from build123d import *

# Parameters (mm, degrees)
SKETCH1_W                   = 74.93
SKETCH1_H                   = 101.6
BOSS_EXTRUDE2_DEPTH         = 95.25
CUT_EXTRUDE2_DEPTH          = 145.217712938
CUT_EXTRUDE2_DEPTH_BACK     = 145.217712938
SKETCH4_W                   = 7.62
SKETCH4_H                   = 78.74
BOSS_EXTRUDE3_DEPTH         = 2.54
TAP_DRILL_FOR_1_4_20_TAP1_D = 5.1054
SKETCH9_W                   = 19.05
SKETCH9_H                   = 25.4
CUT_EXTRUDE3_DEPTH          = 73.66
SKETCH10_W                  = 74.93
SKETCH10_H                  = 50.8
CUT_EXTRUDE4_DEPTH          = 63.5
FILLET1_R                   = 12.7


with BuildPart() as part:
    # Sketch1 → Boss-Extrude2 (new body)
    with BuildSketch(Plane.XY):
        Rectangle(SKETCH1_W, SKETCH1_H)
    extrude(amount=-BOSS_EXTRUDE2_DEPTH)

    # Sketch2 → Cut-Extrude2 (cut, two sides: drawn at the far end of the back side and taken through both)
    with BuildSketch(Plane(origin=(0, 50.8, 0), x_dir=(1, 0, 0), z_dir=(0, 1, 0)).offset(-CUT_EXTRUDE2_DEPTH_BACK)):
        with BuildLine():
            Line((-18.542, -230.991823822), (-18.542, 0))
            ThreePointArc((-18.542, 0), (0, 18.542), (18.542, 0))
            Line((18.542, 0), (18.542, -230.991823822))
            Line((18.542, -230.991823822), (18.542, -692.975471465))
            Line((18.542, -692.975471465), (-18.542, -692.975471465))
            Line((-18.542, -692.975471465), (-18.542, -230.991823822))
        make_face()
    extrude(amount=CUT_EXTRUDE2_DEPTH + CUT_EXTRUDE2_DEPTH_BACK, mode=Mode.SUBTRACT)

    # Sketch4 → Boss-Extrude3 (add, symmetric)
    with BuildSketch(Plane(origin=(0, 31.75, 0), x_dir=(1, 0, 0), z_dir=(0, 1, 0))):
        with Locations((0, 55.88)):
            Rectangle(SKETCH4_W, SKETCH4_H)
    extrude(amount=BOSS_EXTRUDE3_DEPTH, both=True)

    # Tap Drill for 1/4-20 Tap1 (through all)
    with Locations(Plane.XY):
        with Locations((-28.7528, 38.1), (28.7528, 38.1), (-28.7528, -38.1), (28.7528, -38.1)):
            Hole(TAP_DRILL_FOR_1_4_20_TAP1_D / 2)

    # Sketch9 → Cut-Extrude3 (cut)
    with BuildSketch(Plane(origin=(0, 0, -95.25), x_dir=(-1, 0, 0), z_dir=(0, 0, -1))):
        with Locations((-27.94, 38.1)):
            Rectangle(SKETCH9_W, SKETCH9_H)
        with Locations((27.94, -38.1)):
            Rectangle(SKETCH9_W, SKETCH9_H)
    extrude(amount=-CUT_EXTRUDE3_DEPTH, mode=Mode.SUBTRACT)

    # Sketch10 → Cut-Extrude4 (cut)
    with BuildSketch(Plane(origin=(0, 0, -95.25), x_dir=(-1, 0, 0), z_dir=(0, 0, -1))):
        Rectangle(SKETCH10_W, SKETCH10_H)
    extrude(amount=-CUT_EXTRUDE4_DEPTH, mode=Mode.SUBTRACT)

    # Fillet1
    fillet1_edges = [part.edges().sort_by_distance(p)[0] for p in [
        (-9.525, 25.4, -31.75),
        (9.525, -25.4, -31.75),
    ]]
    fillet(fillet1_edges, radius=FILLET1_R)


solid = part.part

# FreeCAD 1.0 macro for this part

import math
import FreeCAD as App
import Part
import Sketcher
from FreeCAD import Vector
Q = App.Units.Quantity


def edges_at(feature, points):
    """Names of the edges that pass closest to the given points."""
    edges = feature.Shape.Edges
    near = lambda p: min(range(len(edges)), key=lambda i: edges[i].distToShape(Part.Vertex(*p))[0])
    return sorted({f"Edge{near(p) + 1}" for p in points})


def add_polygon(sketch, points):
    """Adds a closed chain of lines whose ends are joined by coincident constraints."""
    first, n = sketch.GeometryCount, len(points)
    for a, b in zip(points, points[1:] + points[:1]):
        sketch.addGeometry(Part.LineSegment(App.Vector(*a, 0), App.Vector(*b, 0)), False)
    for i in range(n):
        sketch.addConstraint(Sketcher.Constraint("Coincident", first + i, 2, first + (i + 1) % n, 1))

doc = App.newDocument("Part")
body = doc.addObject("PartDesign::Body", "Body")

sketch1 = body.newObject("Sketcher::SketchObject", "Sketch")
sketch1.AttachmentSupport = (doc.getObject("XY_Plane"), [""])
sketch1.MapMode = "FlatFace"
add_polygon(sketch1, [(-37.465, 50.8), (-37.465, -50.8), (37.465, -50.8), (37.465, 50.8)])
sketch1.addConstraint([
    Sketcher.Constraint("Vertical", 0),
    Sketcher.Constraint("Horizontal", 1),
    Sketcher.Constraint("Vertical", 2),
    Sketcher.Constraint("Horizontal", 3),
    Sketcher.Constraint("Symmetric", 0, 2, 2, 2, -1, 1),
    Sketcher.Constraint("DistanceY", 0, 2, 0, 1, Q("4 in")),
    Sketcher.Constraint("DistanceX", 1, 1, 1, 2, Q("2.95 in")),
])
pad1 = body.newObject("PartDesign::Pad", "Pad")
pad1.Profile = sketch1
pad1.Length = Q("3.75 in")
pad1.Reversed = True

sketch2 = body.newObject("Sketcher::SketchObject", "Sketch001")
sketch2.AttachmentSupport = (doc.getObject("XZ_Plane"), [""])
sketch2.MapMode = "FlatFace"
sketch2.AttachmentOffset = App.Placement(Vector(0, 0, -2 * 25.4), App.Rotation())
sketch2.addGeometry([
    Part.ArcOfCircle(Part.Circle(Vector(0, 0, 0), Vector(0, 0, 1), 18.542), math.radians(180), math.radians(360)),
    Part.LineSegment(Vector(-18.542, 0, 0), Vector(-18.542, 692.975471, 0)),
    Part.LineSegment(Vector(-18.542, 692.975471, 0), Vector(18.542, 692.975471, 0)),
    Part.LineSegment(Vector(18.542, 692.975471, 0), Vector(18.542, 0, 0)),
], False)
sketch2.addConstraint([
    Sketcher.Constraint("Tangent", 0, 1, 1, 1),
    Sketcher.Constraint("Coincident", 1, 2, 2, 1),
    Sketcher.Constraint("Coincident", 2, 2, 3, 1),
    Sketcher.Constraint("Tangent", 3, 2, 0, 2),
    Sketcher.Constraint("Vertical", 1),
    Sketcher.Constraint("Horizontal", 2),
    Sketcher.Constraint("Vertical", 3),
    Sketcher.Constraint("Coincident", 0, 3, -1, 1),
    Sketcher.Constraint("Radius", 0, Q("0.73 in")),
    Sketcher.Constraint("DistanceY", 1, 1, 1, 2, 692.975471),
])
pocket1 = body.newObject("PartDesign::Pocket", "Pocket")
pocket1.Profile = sketch2
pocket1.Type = "ThroughAll"
pocket1.Midplane = True

sketch3 = body.newObject("Sketcher::SketchObject", "Sketch002")
sketch3.AttachmentSupport = (doc.getObject("XZ_Plane"), [""])
sketch3.MapMode = "FlatFace"
sketch3.AttachmentOffset = App.Placement(Vector(0, 0, -1.25 * 25.4), App.Rotation())
add_polygon(sketch3, [(-3.81, -95.25), (-3.81, -16.51), (3.81, -16.51), (3.81, -95.25)])
sketch3.addConstraint([
    Sketcher.Constraint("Vertical", 0),
    Sketcher.Constraint("Horizontal", 1),
    Sketcher.Constraint("Vertical", 2),
    Sketcher.Constraint("Horizontal", 3),
    Sketcher.Constraint("DistanceX", 1, 1, 1, 2, Q("0.3 in")),
    Sketcher.Constraint("DistanceY", 0, 1, 0, 2, Q("3.1 in")),
    Sketcher.Constraint("DistanceX", 0, 2, -1, 1, Q("0.15 in")),
    Sketcher.Constraint("DistanceY", 0, 2, -1, 1, Q("0.65 in")),
])
pad2 = body.newObject("PartDesign::Pad", "Pad001")
pad2.Profile = sketch3
pad2.Length = Q("0.2 in")
pad2.Midplane = True

sketch4 = body.newObject("Sketcher::SketchObject", "Sketch003")
sketch4.AttachmentSupport = (doc.getObject("XY_Plane"), [""])
sketch4.MapMode = "FlatFace"
sketch4.addGeometry([
    Part.Circle(Vector(-28.7528, 38.1, 0), Vector(0, 0, 1), 2.5527),
    Part.Circle(Vector(28.7528, 38.1, 0), Vector(0, 0, 1), 2.5527),
    Part.Circle(Vector(-28.7528, -38.1, 0), Vector(0, 0, 1), 2.5527),
    Part.Circle(Vector(28.7528, -38.1, 0), Vector(0, 0, 1), 2.5527),
], False)
sketch4.addConstraint([
    Sketcher.Constraint("Equal", 0, 1),
    Sketcher.Constraint("Equal", 1, 2),
    Sketcher.Constraint("Equal", 2, 3),
    Sketcher.Constraint("Symmetric", 1, 3, 2, 3, -1, 1),
    Sketcher.Constraint("Symmetric", 0, 3, 3, 3, -1, 1),
    Sketcher.Constraint("Symmetric", 0, 3, 1, 3, -2),
    Sketcher.Constraint("Diameter", 0, Q("0.201 in")),
    Sketcher.Constraint("DistanceY", 2, 3, 0, 3, Q("3 in")),
    Sketcher.Constraint("DistanceX", 0, 3, -1, 1, Q("1.132 in")),
])
doc.recompute()
hole = body.newObject("PartDesign::Hole", "Hole")
hole.Profile = sketch4
hole.ThreadType = "None"
hole.Diameter = Q("0.201 in")
hole.DepthType = "ThroughAll"

sketch5 = body.newObject("Sketcher::SketchObject", "Sketch004")
sketch5.AttachmentSupport = (doc.getObject("XY_Plane"), [""])
sketch5.MapMode = "FlatFace"
sketch5.AttachmentOffset = App.Placement(Vector(0, 0, -3.75 * 25.4), App.Rotation())
add_polygon(sketch5, [(37.465, 50.8), (37.465, 25.4), (18.415, 25.4), (18.415, 50.8)])
add_polygon(sketch5, [(-18.415, -25.4), (-18.415, -50.8), (-37.465, -50.8), (-37.465, -25.4)])
sketch5.addConstraint([
    Sketcher.Constraint("Vertical", 0),
    Sketcher.Constraint("Horizontal", 1),
    Sketcher.Constraint("Vertical", 2),
    Sketcher.Constraint("Horizontal", 3),
    Sketcher.Constraint("Vertical", 4),
    Sketcher.Constraint("Horizontal", 5),
    Sketcher.Constraint("Vertical", 6),
    Sketcher.Constraint("Horizontal", 7),
    Sketcher.Constraint("Symmetric", 2, 2, 4, 2, -1, 1),
    Sketcher.Constraint("Symmetric", 0, 2, 6, 2, -1, 1),
    Sketcher.Constraint("DistanceY", 0, 2, 0, 1, Q("1 in")),
    Sketcher.Constraint("DistanceY", -1, 1, 0, 2, Q("1 in")),
    Sketcher.Constraint("DistanceX", 1, 2, 1, 1, Q("0.75 in")),
    Sketcher.Constraint("DistanceX", 4, 2, 0, 2, Q("2.2 in")),
])
pocket2 = body.newObject("PartDesign::Pocket", "Pocket001")
pocket2.Profile = sketch5
pocket2.Length = Q("2.9 in")
pocket2.Reversed = True

sketch6 = body.newObject("Sketcher::SketchObject", "Sketch005")
sketch6.AttachmentSupport = (doc.getObject("XY_Plane"), [""])
sketch6.MapMode = "FlatFace"
sketch6.AttachmentOffset = App.Placement(Vector(0, 0, -3.75 * 25.4), App.Rotation())
add_polygon(sketch6, [(37.465, 25.4), (37.465, -25.4), (-37.465, -25.4), (-37.465, 25.4)])
sketch6.addConstraint([
    Sketcher.Constraint("Vertical", 0),
    Sketcher.Constraint("Horizontal", 1),
    Sketcher.Constraint("Vertical", 2),
    Sketcher.Constraint("Horizontal", 3),
    Sketcher.Constraint("Symmetric", 0, 2, 2, 2, -1, 1),
    Sketcher.Constraint("DistanceY", 0, 2, 0, 1, Q("2 in")),
    Sketcher.Constraint("DistanceX", 1, 2, 1, 1, Q("2.95 in")),
])
pocket3 = body.newObject("PartDesign::Pocket", "Pocket002")
pocket3.Profile = sketch6
pocket3.Length = Q("2.5 in")
pocket3.Reversed = True
doc.recompute()

fillet = body.newObject("PartDesign::Fillet", "Fillet")
fillet.Base = (pocket3, edges_at(pocket3, [(-9.525, 25.4, -31.75), (9.525, -25.4, -31.75)]))
fillet.Radius = Q("0.5 in")

doc.recompute()
